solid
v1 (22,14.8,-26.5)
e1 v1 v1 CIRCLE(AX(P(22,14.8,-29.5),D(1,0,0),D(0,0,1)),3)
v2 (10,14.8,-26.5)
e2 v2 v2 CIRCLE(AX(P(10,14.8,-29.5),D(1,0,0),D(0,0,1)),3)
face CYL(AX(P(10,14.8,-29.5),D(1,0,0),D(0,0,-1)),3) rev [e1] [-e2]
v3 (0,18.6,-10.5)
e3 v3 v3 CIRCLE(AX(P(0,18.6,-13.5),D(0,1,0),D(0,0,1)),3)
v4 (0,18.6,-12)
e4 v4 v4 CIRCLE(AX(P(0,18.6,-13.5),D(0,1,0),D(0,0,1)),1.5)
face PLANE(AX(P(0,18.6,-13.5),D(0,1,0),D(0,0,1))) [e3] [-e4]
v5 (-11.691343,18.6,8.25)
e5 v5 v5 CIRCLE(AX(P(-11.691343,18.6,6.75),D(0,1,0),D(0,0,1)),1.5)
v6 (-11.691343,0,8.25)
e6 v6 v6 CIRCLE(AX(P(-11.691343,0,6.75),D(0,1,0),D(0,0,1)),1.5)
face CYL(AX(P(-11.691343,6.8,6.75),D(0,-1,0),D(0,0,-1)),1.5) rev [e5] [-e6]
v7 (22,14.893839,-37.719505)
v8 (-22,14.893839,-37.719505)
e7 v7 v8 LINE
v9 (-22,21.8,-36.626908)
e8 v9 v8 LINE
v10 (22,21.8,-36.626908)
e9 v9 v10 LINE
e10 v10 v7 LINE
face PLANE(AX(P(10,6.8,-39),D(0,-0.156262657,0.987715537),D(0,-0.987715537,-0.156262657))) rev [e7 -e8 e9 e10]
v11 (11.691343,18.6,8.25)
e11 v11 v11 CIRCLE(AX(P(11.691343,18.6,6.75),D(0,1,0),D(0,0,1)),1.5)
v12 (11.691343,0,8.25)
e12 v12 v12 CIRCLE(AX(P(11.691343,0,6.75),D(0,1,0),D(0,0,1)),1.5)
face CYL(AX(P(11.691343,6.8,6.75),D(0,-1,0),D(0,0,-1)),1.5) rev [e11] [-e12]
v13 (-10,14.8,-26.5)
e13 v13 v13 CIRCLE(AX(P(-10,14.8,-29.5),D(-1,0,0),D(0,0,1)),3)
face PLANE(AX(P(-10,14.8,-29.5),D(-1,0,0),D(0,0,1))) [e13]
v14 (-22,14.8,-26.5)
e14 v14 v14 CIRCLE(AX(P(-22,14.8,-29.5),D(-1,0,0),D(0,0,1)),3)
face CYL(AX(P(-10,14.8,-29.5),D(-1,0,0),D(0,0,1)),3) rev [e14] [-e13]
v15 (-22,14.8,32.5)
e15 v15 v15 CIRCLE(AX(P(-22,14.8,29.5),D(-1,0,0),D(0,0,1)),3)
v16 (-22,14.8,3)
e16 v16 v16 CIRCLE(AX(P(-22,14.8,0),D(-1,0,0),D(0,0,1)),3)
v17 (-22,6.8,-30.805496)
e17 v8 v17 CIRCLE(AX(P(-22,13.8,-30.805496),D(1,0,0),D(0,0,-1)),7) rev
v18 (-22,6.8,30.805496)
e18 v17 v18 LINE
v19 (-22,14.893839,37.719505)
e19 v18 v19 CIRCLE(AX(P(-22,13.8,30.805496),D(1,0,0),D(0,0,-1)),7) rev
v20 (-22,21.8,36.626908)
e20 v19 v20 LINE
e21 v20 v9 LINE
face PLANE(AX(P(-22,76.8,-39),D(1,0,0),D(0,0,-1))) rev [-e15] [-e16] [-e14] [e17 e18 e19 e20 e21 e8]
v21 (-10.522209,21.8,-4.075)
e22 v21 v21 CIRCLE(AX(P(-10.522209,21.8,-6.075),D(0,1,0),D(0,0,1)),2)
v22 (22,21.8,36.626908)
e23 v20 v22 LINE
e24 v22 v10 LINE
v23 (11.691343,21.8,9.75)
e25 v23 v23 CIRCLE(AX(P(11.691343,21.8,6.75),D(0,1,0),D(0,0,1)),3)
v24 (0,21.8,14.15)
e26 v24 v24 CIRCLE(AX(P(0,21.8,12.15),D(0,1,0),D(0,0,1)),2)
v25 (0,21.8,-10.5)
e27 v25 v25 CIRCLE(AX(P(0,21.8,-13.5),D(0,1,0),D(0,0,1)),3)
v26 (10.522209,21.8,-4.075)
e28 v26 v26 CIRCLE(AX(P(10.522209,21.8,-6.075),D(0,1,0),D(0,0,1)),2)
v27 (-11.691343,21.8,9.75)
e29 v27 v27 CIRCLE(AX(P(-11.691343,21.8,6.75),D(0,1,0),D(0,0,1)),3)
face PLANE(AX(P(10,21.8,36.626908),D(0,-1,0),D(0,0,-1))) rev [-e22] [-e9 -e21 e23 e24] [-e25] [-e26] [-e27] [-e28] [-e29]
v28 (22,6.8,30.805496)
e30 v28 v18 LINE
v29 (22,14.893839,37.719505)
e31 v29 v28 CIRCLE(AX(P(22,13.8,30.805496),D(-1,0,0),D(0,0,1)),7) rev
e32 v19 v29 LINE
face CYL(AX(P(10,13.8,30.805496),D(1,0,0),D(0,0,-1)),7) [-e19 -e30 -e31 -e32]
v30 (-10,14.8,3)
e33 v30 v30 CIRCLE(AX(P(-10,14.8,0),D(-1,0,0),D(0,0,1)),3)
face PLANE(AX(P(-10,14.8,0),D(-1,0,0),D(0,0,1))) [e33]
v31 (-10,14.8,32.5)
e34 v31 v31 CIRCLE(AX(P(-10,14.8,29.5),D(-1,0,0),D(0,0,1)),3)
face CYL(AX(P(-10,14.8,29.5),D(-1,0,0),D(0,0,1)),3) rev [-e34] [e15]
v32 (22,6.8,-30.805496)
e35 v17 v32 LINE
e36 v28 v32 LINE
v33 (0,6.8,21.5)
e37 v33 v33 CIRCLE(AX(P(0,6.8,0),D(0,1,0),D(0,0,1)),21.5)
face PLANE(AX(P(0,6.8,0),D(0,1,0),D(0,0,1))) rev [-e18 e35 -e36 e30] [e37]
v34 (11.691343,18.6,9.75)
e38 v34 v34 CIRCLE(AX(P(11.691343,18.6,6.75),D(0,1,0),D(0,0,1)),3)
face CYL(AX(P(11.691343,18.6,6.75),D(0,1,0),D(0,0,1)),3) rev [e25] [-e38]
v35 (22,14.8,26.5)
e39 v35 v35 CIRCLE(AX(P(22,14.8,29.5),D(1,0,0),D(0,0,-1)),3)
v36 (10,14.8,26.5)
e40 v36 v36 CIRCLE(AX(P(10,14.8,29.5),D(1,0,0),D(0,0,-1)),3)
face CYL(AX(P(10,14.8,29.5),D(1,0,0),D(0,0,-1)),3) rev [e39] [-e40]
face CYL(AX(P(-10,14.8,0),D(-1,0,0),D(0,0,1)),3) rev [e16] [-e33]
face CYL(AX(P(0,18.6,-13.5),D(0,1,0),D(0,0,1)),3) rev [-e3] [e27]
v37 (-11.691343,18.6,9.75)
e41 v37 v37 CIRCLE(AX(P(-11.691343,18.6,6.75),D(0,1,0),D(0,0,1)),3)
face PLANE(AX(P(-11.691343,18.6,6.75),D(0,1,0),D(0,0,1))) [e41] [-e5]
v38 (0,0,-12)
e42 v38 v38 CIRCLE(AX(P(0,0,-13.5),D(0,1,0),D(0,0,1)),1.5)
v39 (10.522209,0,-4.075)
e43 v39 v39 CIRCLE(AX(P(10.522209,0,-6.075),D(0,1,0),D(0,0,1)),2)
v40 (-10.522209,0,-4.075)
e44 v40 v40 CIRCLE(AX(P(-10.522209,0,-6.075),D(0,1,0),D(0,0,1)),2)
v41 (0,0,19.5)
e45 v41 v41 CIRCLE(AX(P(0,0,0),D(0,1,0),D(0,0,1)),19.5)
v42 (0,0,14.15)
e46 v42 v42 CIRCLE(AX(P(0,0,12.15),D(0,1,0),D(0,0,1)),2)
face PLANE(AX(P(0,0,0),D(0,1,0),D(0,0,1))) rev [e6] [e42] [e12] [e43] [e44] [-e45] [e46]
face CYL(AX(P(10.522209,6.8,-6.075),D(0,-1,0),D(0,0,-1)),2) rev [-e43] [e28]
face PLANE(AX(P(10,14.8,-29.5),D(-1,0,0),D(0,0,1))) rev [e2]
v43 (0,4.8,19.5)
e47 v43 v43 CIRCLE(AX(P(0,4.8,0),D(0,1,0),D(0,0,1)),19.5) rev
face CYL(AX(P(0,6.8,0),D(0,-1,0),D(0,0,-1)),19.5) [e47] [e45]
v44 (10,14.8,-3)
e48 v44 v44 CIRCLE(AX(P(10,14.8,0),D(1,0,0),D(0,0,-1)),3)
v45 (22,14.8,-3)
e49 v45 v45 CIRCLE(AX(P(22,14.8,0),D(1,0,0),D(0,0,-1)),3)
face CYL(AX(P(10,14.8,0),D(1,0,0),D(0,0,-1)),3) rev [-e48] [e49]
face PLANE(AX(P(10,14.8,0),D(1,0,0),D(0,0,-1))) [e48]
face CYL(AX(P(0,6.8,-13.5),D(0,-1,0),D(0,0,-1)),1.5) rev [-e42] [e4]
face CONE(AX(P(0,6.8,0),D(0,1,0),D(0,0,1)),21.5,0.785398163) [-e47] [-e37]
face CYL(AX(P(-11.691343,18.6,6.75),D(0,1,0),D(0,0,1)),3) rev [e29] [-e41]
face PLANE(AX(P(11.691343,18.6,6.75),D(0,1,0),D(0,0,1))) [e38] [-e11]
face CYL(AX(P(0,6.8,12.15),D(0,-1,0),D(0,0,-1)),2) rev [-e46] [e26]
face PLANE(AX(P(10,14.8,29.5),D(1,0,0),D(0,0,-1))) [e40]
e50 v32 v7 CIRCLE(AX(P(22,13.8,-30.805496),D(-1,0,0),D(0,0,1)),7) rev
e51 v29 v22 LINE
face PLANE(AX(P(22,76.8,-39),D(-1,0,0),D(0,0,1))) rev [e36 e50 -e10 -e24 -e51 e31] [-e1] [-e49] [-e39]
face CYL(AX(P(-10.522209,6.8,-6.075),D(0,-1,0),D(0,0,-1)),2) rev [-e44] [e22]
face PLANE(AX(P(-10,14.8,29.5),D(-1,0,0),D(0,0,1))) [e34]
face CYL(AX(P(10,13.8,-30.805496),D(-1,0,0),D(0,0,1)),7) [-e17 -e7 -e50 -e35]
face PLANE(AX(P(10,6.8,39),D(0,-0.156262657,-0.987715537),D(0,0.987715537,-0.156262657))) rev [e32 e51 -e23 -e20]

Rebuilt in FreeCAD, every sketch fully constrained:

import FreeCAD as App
import Part
import Sketcher
Q = App.Units.Quantity


def edges_at(feature, points):
    """Names of the edges that pass closest to the given points."""
    edges = feature.Shape.Edges
    near = lambda p: min(range(len(edges)), key=lambda i: edges[i].distToShape(Part.Vertex(*p))[0])
    return sorted({f"Edge{near(p) + 1}" for p in points})


def add_polygon(sketch, points):
    """Adds a closed chain of lines whose ends are joined by coincident constraints."""
    first, n = sketch.GeometryCount, len(points)
    for a, b in zip(points, points[1:] + points[:1]):
        sketch.addGeometry(Part.LineSegment(App.Vector(*a, 0), App.Vector(*b, 0)), False)
    for i in range(n):
        sketch.addConstraint(Sketcher.Constraint("Coincident", first + i, 2, first + (i + 1) % n, 1))

doc = App.newDocument("Part")
body = doc.addObject("PartDesign::Body", "Body")

# Sketch on XZ plane
sketch1 = body.newObject("Sketcher::SketchObject", "Sketch")
sketch1.AttachmentSupport = (doc.getObject("XZ_Plane"), [""])
sketch1.MapMode = "FlatFace"
sketch1.addGeometry([
    Part.Circle(App.Vector(0, 0, 0), App.Vector(0, 0, 1), 19.5),  # 0
    Part.Circle(App.Vector(-11.7, 6.8, 0), App.Vector(0, 0, 1), 1.5),  # 1
    Part.Circle(App.Vector(0, 12.2, 0), App.Vector(0, 0, 1), 2),  # 2
    Part.Circle(App.Vector(11.7, 6.8, 0), App.Vector(0, 0, 1), 1.5),  # 3
    Part.Circle(App.Vector(-10.5, -6.1, 0), App.Vector(0, 0, 1), 2),  # 4
    Part.Circle(App.Vector(10.5, -6.1, 0), App.Vector(0, 0, 1), 2),  # 5
    Part.Circle(App.Vector(0, -13.5, 0), App.Vector(0, 0, 1), 1.5),  # 6
], False)
sketch1.addConstraint([
    Sketcher.Constraint("Coincident", 0, 3, -1, 1),
    Sketcher.Constraint("Equal", 1, 3),
    Sketcher.Constraint("Equal", 2, 4),
    Sketcher.Constraint("Equal", 4, 5),
    Sketcher.Constraint("Equal", 3, 6),
    Sketcher.Constraint("Symmetric", 1, 3, 3, 3, -2),
    Sketcher.Constraint("Symmetric", 4, 3, 5, 3, -2),
    Sketcher.Constraint("PointOnObject", 2, 3, -2),
    Sketcher.Constraint("PointOnObject", 6, 3, -2),
    Sketcher.Constraint("Diameter", 0, Q("39 mm")),
    Sketcher.Constraint("Diameter", 1, Q("3 mm")),
    Sketcher.Constraint("Diameter", 2, Q("4 mm")),
    Sketcher.Constraint("DistanceY", 6, 3, -1, 1, Q("13.5 mm")),
    Sketcher.Constraint("DistanceY", 1, 3, 2, 3, Q("5.4 mm")),
    Sketcher.Constraint("DistanceY", -1, 1, 1, 3, Q("6.75 mm")),
    Sketcher.Constraint("DistanceY", 4, 3, -1, 1, Q("6.075 mm")),
    Sketcher.Constraint("DistanceX", 4, 3, -1, 1, Q("10.522209 mm")),
    Sketcher.Constraint("DistanceX", 4, 3, 3, 3, Q("22.213552 mm")),
])
pad1 = body.newObject("PartDesign::Pad", "Pad")
pad1.Profile = sketch1
pad1.Length = 6.8
pad1.Reversed = True

# Sketch on XZ plane
sketch2 = body.newObject("Sketcher::SketchObject", "Sketch001")
sketch2.AttachmentSupport = (doc.getObject("XZ_Plane"), [""])
sketch2.MapMode = "FlatFace"
sketch2.AttachmentOffset = App.Placement(App.Vector(0, 0, -6.8), App.Rotation())
add_polygon(sketch2, [(-22, -39), (-22, 39), (22, 39), (22, -39)])  # lines 0-3
sketch2.addConstraint([
    Sketcher.Constraint("Vertical", 0),
    Sketcher.Constraint("Horizontal", 1),
    Sketcher.Constraint("Vertical", 2),
    Sketcher.Constraint("Horizontal", 3),
    Sketcher.Constraint("Symmetric", 0, 2, 2, 2, -1, 1),
    Sketcher.Constraint("DistanceX", 1, 1, 1, 2, Q("44 mm")),
    Sketcher.Constraint("DistanceY", 0, 1, 0, 2, Q("78 mm")),
])
pad2 = body.newObject("PartDesign::Pad", "Pad001")
pad2.Profile = sketch2
pad2.Length = 70
pad2.Reversed = True

# Sketch on YZ plane
sketch3 = body.newObject("Sketcher::SketchObject", "Sketch002")
sketch3.AttachmentSupport = (doc.getObject("YZ_Plane"), [""])
sketch3.MapMode = "FlatFace"
sketch3.AttachmentOffset = App.Placement(App.Vector(0, 0, 22), App.Rotation())
sketch3.addGeometry(Part.Circle(App.Vector(14.8, 0, 0), App.Vector(0, 0, 1), 3), False)  # 0
sketch3.addGeometry(Part.Circle(App.Vector(14.8, 29.5, 0), App.Vector(0, 0, 1), 3), False)  # 1
sketch3.addGeometry(Part.Circle(App.Vector(14.8, -29.5, 0), App.Vector(0, 0, 1), 3), False)  # 2
add_polygon(sketch3, [(6.8, 39), (21.8, 36.6), (21.8, -36.6), (6.8, -39), (6.8, -44.1), (83.5, -44.1), (83.5, 44.1), (6.8, 44.1)])  # lines 3-10
sketch3.addConstraint([
    Sketcher.Constraint("Vertical", 4),
    Sketcher.Constraint("Vertical", 6),
    Sketcher.Constraint("Horizontal", 7),
    Sketcher.Constraint("Vertical", 8),
    Sketcher.Constraint("Horizontal", 9),
    Sketcher.Constraint("Vertical", 10),
    Sketcher.Constraint("Equal", 0, 1),
    Sketcher.Constraint("Equal", 1, 2),
    Sketcher.Constraint("Symmetric", 1, 3, 2, 3, -1),
    Sketcher.Constraint("Symmetric", 6, 2, 9, 2, -1),
    Sketcher.Constraint("PointOnObject", 0, 3, -1),
    Sketcher.Constraint("Vertical", 0, 3, 1, 3),
    Sketcher.Constraint("Equal", 6, 10),
    Sketcher.Constraint("Equal", 3, 5),
    Sketcher.Constraint("Diameter", 0, Q("6 mm")),
    Sketcher.Constraint("DistanceY", 5, 2, -1, 1, Q("39 mm")),
    Sketcher.Constraint("DistanceY", 2, 3, 1, 3, Q("59 mm")),
    Sketcher.Constraint("DistanceX", 1, 3, 3, 2, Q("7 mm")),
    Sketcher.Constraint("DistanceX", 5, 2, 2, 3, Q("8 mm")),
    Sketcher.Constraint("DistanceX", -1, 1, 0, 3, Q("14.8 mm")),
    Sketcher.Constraint("Distance", 3, Q("15.186559 mm")),
    Sketcher.Constraint("DistanceX", 7, 1, 7, 2, Q("76.698576 mm")),
    Sketcher.Constraint("DistanceY", 6, 2, 6, 1, Q("5.081826 mm")),
])
pocket1 = body.newObject("PartDesign::Pocket", "Pocket")
pocket1.Profile = sketch3
pocket1.Length = 12

# Sketch on YZ plane
sketch4 = body.newObject("Sketcher::SketchObject", "Sketch003")
sketch4.AttachmentSupport = (doc.getObject("YZ_Plane"), [""])
sketch4.MapMode = "FlatFace"
sketch4.AttachmentOffset = App.Placement(App.Vector(0, 0, 10), App.Rotation())
add_polygon(sketch4, [(7, 39), (22, 37), (22, -37), (7, -39), (77, -39), (77, 39)])  # lines 0-5
sketch4.addConstraint([
    Sketcher.Constraint("Vertical", 1),
    Sketcher.Constraint("Horizontal", 3),
    Sketcher.Constraint("Vertical", 4),
    Sketcher.Constraint("Horizontal", 5),
    Sketcher.Constraint("Symmetric", 2, 2, 5, 2, -1),
    Sketcher.Constraint("Equal", 0, 2),
    Sketcher.Constraint("DistanceX", 3, 1, 3, 2, Q("70 mm")),
    Sketcher.Constraint("DistanceY", 4, 1, 4, 2, Q("78 mm")),
    Sketcher.Constraint("DistanceX", 2, 2, 1, 2, Q("15 mm")),
    Sketcher.Constraint("DistanceX", -1, 1, 0, 2, Q("21.8 mm")),
    Sketcher.Constraint("Distance", 0, Q("15.186559 mm")),
])
pocket2 = body.newObject("PartDesign::Pocket", "Pocket001")
pocket2.Profile = sketch4
pocket2.Type = "ThroughAll"

# Sketch on YZ plane
sketch5 = body.newObject("Sketcher::SketchObject", "Sketch004")
sketch5.AttachmentSupport = (doc.getObject("YZ_Plane"), [""])
sketch5.MapMode = "FlatFace"
sketch5.AttachmentOffset = App.Placement(App.Vector(0, 0, -22), App.Rotation())
sketch5.addGeometry([
    Part.Circle(App.Vector(14.8, -29.5, 0), App.Vector(0, 0, 1), 3),
    Part.Circle(App.Vector(14.8, 0, 0), App.Vector(0, 0, 1), 3),
    Part.Circle(App.Vector(14.8, 29.5, 0), App.Vector(0, 0, 1), 3),
], False)
sketch5.addConstraint([
    Sketcher.Constraint("Equal", 0, 1),
    Sketcher.Constraint("Equal", 1, 2),
    Sketcher.Constraint("Symmetric", 0, 3, 2, 3, -1),
    Sketcher.Constraint("PointOnObject", 1, 3, -1),
    Sketcher.Constraint("Vertical", 0, 3, 1, 3),
    Sketcher.Constraint("Diameter", 0, Q("6 mm")),
    Sketcher.Constraint("DistanceY", 0, 3, 2, 3, Q("59 mm")),
    Sketcher.Constraint("DistanceX", -1, 1, 0, 3, Q("14.8 mm")),
])
pocket3 = body.newObject("PartDesign::Pocket", "Pocket002")
pocket3.Profile = sketch5
pocket3.Length = 12
pocket3.Reversed = True
doc.recompute()

chamfer = body.newObject("PartDesign::Chamfer", "Chamfer")
chamfer.Base = (pocket3, edges_at(pocket3, [(-19.5, 6.8, 0)]))
chamfer.Size = 2
doc.recompute()

fillet = body.newObject("PartDesign::Fillet", "Fillet")
fillet.Base = (chamfer, edges_at(chamfer, [(0, 6.8, -39), (0, 6.8, 39)]))
fillet.Radius = 7

# Sketch on XZ plane
sketch6 = body.newObject("Sketcher::SketchObject", "Sketch005")
sketch6.AttachmentSupport = (doc.getObject("XZ_Plane"), [""])
sketch6.MapMode = "FlatFace"
sketch6.AttachmentOffset = App.Placement(App.Vector(0, 0, -21.8), App.Rotation())
sketch6.addGeometry([
    Part.Circle(App.Vector(10.5, -6.1, 0), App.Vector(0, 0, 1), 2),  # 0
    Part.Circle(App.Vector(11.7, 6.8, 0), App.Vector(0, 0, 1), 1.5),  # 1
    Part.Circle(App.Vector(0, 12.2, 0), App.Vector(0, 0, 1), 2),  # 2
    Part.Circle(App.Vector(-11.7, 6.8, 0), App.Vector(0, 0, 1), 1.5),  # 3
    Part.Circle(App.Vector(-10.5, -6.1, 0), App.Vector(0, 0, 1), 2),  # 4
    Part.Circle(App.Vector(0, -13.5, 0), App.Vector(0, 0, 1), 1.5),  # 5
], False)
sketch6.addConstraint([
    Sketcher.Constraint("Equal", 0, 2),
    Sketcher.Constraint("Equal", 1, 3),
    Sketcher.Constraint("Equal", 2, 4),
    Sketcher.Constraint("Equal", 3, 5),
    Sketcher.Constraint("Symmetric", 1, 3, 3, 3, -2),
    Sketcher.Constraint("Symmetric", 0, 3, 4, 3, -2),
    Sketcher.Constraint("PointOnObject", 2, 3, -2),
    Sketcher.Constraint("PointOnObject", 5, 3, -2),
    Sketcher.Constraint("Diameter", 0, Q("4 mm")),
    Sketcher.Constraint("Diameter", 1, Q("3 mm")),
    Sketcher.Constraint("DistanceY", 5, 3, -1, 1, Q("13.5 mm")),
    Sketcher.Constraint("DistanceY", 1, 3, 2, 3, Q("5.4 mm")),
    Sketcher.Constraint("DistanceY", -1, 1, 1, 3, Q("6.75 mm")),
    Sketcher.Constraint("DistanceY", 0, 3, -1, 1, Q("6.075 mm")),
    Sketcher.Constraint("DistanceX", -1, 1, 0, 3, Q("10.522209 mm")),
    Sketcher.Constraint("DistanceX", 3, 3, 0, 3, Q("22.213552 mm")),
])
pocket4 = body.newObject("PartDesign::Pocket", "Pocket003")
pocket4.Profile = sketch6
pocket4.Type = "ThroughAll"
pocket4.Reversed = True

# Sketch on XZ plane
sketch7 = body.newObject("Sketcher::SketchObject", "Sketch006")
sketch7.AttachmentSupport = (doc.getObject("XZ_Plane"), [""])
sketch7.MapMode = "FlatFace"
sketch7.AttachmentOffset = App.Placement(App.Vector(0, 0, -21.8), App.Rotation())
sketch7.addGeometry([
    Part.Circle(App.Vector(0, -13.5, 0), App.Vector(0, 0, 1), 3),
    Part.Circle(App.Vector(11.7, 6.8, 0), App.Vector(0, 0, 1), 3),
    Part.Circle(App.Vector(-11.7, 6.8, 0), App.Vector(0, 0, 1), 3),
], False)
sketch7.addConstraint([
    Sketcher.Constraint("Equal", 0, 1),
    Sketcher.Constraint("Equal", 1, 2),
    Sketcher.Constraint("Symmetric", 1, 3, 2, 3, -2),
    Sketcher.Constraint("PointOnObject", 0, 3, -2),
    Sketcher.Constraint("Diameter", 0, Q("6 mm")),
    Sketcher.Constraint("DistanceY", 0, 3, -1, 1, Q("13.5 mm")),
    Sketcher.Constraint("DistanceY", -1, 1, 1, 3, Q("6.75 mm")),
    Sketcher.Constraint("DistanceX", -1, 1, 1, 3, Q("11.691343 mm")),
])
pocket5 = body.newObject("PartDesign::Pocket", "Pocket004")
pocket5.Profile = sketch7
pocket5.Length = 3.2
pocket5.Reversed = True

doc.recompute()
